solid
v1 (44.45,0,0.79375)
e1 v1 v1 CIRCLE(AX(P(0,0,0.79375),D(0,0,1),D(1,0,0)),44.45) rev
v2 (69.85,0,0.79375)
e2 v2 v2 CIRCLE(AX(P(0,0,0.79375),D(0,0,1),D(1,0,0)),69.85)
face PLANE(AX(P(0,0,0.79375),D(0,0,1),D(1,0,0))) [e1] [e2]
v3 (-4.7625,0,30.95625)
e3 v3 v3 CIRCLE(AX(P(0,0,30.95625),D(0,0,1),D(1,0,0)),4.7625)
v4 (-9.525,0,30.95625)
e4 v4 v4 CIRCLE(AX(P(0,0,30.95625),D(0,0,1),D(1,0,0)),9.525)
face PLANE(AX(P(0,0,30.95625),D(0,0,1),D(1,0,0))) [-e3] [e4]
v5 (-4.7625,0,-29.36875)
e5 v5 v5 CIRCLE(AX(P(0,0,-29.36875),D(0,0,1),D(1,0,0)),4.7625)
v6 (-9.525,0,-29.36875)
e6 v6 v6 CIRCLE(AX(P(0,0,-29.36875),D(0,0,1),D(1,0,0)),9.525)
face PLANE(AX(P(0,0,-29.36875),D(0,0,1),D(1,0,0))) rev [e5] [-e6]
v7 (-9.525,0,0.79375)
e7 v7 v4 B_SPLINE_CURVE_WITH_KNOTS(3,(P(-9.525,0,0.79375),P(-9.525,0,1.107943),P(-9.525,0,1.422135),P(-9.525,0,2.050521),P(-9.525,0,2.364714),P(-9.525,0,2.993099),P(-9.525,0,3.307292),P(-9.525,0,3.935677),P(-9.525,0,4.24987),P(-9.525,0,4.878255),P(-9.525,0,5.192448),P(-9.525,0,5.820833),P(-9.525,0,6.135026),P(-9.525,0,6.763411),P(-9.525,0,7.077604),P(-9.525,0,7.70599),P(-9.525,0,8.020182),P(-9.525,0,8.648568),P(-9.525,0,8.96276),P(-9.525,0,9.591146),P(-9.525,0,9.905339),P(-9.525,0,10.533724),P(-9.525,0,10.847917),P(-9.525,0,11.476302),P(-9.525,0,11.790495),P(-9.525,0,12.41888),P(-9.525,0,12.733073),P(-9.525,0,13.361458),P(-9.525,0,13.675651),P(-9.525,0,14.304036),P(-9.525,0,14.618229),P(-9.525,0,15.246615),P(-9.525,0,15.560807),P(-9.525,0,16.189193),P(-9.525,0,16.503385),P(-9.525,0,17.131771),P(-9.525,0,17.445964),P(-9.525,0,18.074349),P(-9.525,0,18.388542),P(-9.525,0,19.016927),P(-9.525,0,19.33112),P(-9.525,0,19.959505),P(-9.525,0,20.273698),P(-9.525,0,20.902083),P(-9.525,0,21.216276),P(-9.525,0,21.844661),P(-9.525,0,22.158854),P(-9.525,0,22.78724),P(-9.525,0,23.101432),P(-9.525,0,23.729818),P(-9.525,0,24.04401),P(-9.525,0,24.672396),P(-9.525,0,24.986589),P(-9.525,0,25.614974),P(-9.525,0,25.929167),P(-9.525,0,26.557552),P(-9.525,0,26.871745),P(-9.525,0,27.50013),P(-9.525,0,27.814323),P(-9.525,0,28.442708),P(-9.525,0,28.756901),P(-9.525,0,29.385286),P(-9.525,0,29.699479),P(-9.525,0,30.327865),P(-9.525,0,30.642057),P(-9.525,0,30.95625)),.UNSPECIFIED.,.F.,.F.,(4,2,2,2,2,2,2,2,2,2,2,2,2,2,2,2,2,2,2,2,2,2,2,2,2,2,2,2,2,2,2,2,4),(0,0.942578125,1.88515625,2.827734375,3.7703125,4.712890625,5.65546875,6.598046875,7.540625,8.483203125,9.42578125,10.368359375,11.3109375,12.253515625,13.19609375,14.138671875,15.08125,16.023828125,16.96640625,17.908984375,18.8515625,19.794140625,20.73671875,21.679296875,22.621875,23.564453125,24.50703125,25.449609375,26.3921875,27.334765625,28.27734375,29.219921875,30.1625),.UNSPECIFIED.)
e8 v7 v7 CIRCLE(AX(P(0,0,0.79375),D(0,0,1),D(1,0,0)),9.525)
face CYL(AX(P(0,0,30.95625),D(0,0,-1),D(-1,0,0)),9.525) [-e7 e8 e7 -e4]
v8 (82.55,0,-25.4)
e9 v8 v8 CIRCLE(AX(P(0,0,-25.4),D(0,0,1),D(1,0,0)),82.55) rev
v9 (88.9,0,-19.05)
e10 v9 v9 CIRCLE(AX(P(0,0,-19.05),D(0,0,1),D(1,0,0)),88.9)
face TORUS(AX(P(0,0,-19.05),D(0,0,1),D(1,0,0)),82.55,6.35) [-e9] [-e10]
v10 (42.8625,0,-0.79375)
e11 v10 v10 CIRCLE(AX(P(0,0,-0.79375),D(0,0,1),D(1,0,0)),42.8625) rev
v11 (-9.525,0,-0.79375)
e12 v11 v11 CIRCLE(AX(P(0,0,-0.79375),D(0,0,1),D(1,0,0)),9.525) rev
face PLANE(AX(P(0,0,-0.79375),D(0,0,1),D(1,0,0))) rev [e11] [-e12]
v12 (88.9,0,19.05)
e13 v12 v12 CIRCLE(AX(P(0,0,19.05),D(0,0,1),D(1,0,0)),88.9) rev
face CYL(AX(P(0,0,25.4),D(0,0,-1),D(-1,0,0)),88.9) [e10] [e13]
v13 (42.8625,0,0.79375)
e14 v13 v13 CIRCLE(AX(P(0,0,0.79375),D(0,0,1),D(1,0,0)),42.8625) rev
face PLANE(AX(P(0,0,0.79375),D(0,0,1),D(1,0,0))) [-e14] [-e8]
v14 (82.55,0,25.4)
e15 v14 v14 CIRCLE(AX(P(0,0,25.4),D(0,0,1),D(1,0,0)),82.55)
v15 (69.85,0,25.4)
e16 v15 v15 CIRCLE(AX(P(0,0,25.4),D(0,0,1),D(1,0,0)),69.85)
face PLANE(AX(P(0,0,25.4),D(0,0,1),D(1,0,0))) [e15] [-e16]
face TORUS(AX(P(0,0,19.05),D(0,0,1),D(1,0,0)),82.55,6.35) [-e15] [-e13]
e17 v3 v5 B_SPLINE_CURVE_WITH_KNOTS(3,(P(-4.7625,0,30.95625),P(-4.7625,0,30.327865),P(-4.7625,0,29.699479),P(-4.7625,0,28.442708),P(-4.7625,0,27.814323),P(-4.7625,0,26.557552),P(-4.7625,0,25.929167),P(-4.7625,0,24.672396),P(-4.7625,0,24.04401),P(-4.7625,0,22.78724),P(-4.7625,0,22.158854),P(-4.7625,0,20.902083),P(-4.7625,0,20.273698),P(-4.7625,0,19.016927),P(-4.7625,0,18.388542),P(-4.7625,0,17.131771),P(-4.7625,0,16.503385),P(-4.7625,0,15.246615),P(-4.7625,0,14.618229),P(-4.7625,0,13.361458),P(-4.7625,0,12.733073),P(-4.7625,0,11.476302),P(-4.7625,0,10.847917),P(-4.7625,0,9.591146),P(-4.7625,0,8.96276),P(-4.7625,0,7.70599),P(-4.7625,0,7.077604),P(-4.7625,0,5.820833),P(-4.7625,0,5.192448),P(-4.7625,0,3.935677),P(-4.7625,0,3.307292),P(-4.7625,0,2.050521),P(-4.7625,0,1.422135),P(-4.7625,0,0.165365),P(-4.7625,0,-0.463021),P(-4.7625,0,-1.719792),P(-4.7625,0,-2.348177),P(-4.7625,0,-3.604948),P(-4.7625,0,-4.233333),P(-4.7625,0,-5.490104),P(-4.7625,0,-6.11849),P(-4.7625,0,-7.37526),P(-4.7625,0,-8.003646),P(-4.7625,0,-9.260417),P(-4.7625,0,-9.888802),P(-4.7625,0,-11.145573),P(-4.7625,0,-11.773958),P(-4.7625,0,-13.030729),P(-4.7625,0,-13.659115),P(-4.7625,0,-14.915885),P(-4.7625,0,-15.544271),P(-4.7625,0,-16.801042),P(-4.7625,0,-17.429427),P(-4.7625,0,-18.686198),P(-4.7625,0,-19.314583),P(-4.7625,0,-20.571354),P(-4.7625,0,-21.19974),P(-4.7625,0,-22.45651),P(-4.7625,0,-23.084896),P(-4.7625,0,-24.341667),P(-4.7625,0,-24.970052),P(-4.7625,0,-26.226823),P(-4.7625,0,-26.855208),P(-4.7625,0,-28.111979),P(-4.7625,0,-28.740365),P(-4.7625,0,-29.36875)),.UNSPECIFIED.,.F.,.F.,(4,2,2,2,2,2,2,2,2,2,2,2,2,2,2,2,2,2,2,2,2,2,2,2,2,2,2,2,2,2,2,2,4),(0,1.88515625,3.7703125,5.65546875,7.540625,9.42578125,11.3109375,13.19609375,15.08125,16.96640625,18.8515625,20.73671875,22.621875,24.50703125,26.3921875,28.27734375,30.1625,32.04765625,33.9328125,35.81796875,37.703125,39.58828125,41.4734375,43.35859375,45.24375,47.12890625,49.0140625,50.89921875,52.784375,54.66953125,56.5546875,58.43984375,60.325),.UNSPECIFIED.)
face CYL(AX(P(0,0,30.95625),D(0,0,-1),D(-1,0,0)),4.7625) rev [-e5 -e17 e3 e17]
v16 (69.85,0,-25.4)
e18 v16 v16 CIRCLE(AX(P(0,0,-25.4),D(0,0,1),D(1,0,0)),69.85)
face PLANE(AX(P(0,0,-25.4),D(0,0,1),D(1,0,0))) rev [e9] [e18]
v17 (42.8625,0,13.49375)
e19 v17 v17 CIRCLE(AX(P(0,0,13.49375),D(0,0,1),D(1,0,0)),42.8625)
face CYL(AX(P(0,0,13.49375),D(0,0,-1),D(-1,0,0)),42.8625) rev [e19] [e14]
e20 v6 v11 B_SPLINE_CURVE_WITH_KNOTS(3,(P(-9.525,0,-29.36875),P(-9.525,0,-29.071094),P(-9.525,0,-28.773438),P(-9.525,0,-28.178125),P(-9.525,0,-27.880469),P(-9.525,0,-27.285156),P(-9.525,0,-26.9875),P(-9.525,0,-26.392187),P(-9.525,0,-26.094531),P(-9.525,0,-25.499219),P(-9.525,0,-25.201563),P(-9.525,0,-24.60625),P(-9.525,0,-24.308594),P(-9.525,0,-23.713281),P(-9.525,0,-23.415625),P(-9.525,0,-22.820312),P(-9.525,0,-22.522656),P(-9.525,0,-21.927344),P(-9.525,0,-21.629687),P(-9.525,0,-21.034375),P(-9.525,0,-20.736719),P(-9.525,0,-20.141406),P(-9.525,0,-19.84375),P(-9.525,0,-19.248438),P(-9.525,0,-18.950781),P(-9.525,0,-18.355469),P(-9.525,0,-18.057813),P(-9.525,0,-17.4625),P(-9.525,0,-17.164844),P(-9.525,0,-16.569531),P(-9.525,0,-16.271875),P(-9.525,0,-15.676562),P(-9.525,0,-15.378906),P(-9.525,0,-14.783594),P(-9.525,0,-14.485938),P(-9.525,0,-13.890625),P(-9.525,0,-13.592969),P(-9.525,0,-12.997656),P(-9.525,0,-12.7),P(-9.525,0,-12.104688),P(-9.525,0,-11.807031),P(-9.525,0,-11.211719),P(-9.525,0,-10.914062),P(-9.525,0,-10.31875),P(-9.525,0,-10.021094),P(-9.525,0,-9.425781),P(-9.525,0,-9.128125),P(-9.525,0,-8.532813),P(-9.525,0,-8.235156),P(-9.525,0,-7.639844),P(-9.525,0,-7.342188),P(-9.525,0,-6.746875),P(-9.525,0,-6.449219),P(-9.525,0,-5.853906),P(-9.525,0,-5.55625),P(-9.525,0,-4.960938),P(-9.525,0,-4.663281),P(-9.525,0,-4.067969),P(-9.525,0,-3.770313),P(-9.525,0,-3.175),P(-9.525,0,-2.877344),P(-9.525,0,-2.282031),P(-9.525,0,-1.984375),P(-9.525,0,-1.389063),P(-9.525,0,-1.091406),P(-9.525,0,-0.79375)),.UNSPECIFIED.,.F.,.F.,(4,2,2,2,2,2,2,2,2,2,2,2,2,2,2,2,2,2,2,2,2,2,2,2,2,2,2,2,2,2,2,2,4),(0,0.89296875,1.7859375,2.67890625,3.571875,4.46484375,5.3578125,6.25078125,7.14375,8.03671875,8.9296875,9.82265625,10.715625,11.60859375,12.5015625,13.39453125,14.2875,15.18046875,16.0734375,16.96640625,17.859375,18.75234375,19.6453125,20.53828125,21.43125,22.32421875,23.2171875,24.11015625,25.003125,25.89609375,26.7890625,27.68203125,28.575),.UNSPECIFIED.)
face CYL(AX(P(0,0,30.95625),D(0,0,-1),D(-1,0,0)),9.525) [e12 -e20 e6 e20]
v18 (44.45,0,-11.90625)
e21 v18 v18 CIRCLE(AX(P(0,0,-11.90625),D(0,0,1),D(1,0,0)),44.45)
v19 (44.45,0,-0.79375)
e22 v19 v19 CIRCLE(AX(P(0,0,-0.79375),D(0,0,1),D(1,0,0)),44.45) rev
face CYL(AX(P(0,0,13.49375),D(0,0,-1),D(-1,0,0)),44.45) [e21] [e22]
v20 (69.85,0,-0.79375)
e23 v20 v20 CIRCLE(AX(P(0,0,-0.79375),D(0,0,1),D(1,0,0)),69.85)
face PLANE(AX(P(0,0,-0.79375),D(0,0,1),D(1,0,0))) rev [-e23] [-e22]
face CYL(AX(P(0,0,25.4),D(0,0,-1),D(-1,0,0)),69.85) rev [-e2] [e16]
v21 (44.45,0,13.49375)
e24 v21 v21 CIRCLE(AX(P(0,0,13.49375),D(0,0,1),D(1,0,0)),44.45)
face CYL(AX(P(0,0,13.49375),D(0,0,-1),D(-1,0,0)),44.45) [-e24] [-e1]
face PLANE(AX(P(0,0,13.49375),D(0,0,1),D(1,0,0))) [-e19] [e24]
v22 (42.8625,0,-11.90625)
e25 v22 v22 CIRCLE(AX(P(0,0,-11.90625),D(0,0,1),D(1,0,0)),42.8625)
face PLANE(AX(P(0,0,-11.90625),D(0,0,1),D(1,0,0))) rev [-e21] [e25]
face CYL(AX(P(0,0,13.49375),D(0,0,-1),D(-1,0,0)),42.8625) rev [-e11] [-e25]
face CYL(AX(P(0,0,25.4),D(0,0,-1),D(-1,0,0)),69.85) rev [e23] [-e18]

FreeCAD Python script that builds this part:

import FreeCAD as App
import Part
import Sketcher
Q = App.Units.Quantity


def edges_at(feature, points):
    """Names of the edges that pass closest to the given points."""
    edges = feature.Shape.Edges
    near = lambda p: min(range(len(edges)), key=lambda i: edges[i].distToShape(Part.Vertex(*p))[0])
    return sorted({f"Edge{near(p) + 1}" for p in points})

doc = App.newDocument("Part")
params = doc.addObject("Spreadsheet::Sheet", "Params")
for row, (alias, value) in enumerate([
    ("sketch1_diameter", "7 in"),
    ("sketch1_diameter2", "5.5 in"),
    ("pad1_length", "2 in"),
    ("fillet_radius", "0.25 in"),
    ("sketch2_diameter", "5.5 in"),
    ("sketch2_diameter2", "0.75 in"),
    ("pad2_length", "0.0625 in"),
    ("sketch3_diameter", "0.75 in"),
    ("sketch3_diameter2", "0.375 in"),
    ("pad3_length", "2.375 in"),
    ("sketch4_diameter", "3.5 in"),
    ("sketch4_diameter2", "3.375 in"),
    ("pad4_length", "1 in"),
], start=1):
    params.set(f"A{row}", alias)
    params.set(f"B{row}", "=" + value)
    params.setAlias(f"B{row}", alias)

body = doc.addObject("PartDesign::Body", "Body")

# Sketch on XY plane
sketch1 = doc.addObject("Sketcher::SketchObject", "Sketch")
body.addObject(sketch1)
sketch1.AttachmentSupport = (doc.XY_Plane, [""])
sketch1.MapMode = "FlatFace"
sketch1.addGeometry([
    Part.Circle(App.Vector(0, 0, 0), App.Vector(0, 0, 1), 89),
    Part.Circle(App.Vector(0, 0, 0), App.Vector(0, 0, 1), 70),
], False)
sketch1.addConstraint([
    Sketcher.Constraint("Coincident", 0, 3, -1, 1),
    Sketcher.Constraint("Coincident", 1, 3, -1, 1),
    Sketcher.Constraint("Diameter", 0, Q("7 in")),
    Sketcher.Constraint("Diameter", 1, Q("5.5 in")),
])
sketch1.setExpression("Constraints[2]", "Params.sketch1_diameter")
sketch1.setExpression("Constraints[3]", "Params.sketch1_diameter2")
pad1 = doc.addObject("PartDesign::Pad", "Pad")
body.addObject(pad1)
pad1.Profile = sketch1
pad1.setExpression("Length", "Params.pad1_length")
pad1.Midplane = True
doc.recompute()

fillet = doc.addObject("PartDesign::Fillet", "Fillet")
body.addObject(fillet)
fillet.Base = (pad1, edges_at(pad1, [(-88.9, 0, -25.4), (-88.9, 0, 25.4)]))
fillet.setExpression("Radius", "Params.fillet_radius")

# Sketch on XY plane
sketch2 = doc.addObject("Sketcher::SketchObject", "Sketch001")
body.addObject(sketch2)
sketch2.AttachmentSupport = (doc.XY_Plane, [""])
sketch2.MapMode = "FlatFace"
sketch2.addGeometry([
    Part.Circle(App.Vector(0, 0, 0), App.Vector(0, 0, 1), 70),
    Part.Circle(App.Vector(0, 0, 0), App.Vector(0, 0, 1), 10),
], False)
sketch2.addConstraint([
    Sketcher.Constraint("Coincident", 0, 3, -1, 1),
    Sketcher.Constraint("Coincident", 1, 3, -1, 1),
    Sketcher.Constraint("Diameter", 0, Q("5.5 in")),
    Sketcher.Constraint("Diameter", 1, Q("0.75 in")),
])
sketch2.setExpression("Constraints[2]", "Params.sketch2_diameter")
sketch2.setExpression("Constraints[3]", "Params.sketch2_diameter2")
pad2 = doc.addObject("PartDesign::Pad", "Pad001")
body.addObject(pad2)
pad2.Profile = sketch2
pad2.setExpression("Length", "Params.pad2_length")
pad2.Midplane = True

# Sketch on XY plane
sketch3 = doc.addObject("Sketcher::SketchObject", "Sketch002")
body.addObject(sketch3)
sketch3.AttachmentSupport = (doc.XY_Plane, [""])
sketch3.MapMode = "FlatFace"
sketch3.AttachmentOffset = App.Placement(App.Vector(0, 0, 0.03125 * 25.4), App.Rotation())
sketch3.addGeometry([
    Part.Circle(App.Vector(0, 0, 0), App.Vector(0, 0, 1), 9.5),
    Part.Circle(App.Vector(0, 0, 0), App.Vector(0, 0, 1), 4.8),
], False)
sketch3.addConstraint([
    Sketcher.Constraint("Coincident", 0, 3, -1, 1),
    Sketcher.Constraint("Coincident", 1, 3, -1, 1),
    Sketcher.Constraint("Diameter", 0, Q("0.75 in")),
    Sketcher.Constraint("Diameter", 1, Q("0.375 in")),
])
sketch3.setExpression("Constraints[2]", "Params.sketch3_diameter")
sketch3.setExpression("Constraints[3]", "Params.sketch3_diameter2")
pad3 = doc.addObject("PartDesign::Pad", "Pad002")
body.addObject(pad3)
pad3.Profile = sketch3
pad3.setExpression("Length", "Params.pad3_length")
pad3.Midplane = True

# Sketch on XY plane
sketch4 = doc.addObject("Sketcher::SketchObject", "Sketch003")
body.addObject(sketch4)
sketch4.AttachmentSupport = (doc.XY_Plane, [""])
sketch4.MapMode = "FlatFace"
sketch4.AttachmentOffset = App.Placement(App.Vector(0, 0, 0.03125 * 25.4), App.Rotation())
sketch4.addGeometry([
    Part.Circle(App.Vector(0, 0, 0), App.Vector(0, 0, 1), 44),
    Part.Circle(App.Vector(0, 0, 0), App.Vector(0, 0, 1), 43),
], False)
sketch4.addConstraint([
    Sketcher.Constraint("Coincident", 0, 3, -1, 1),
    Sketcher.Constraint("Coincident", 1, 3, -1, 1),
    Sketcher.Constraint("Diameter", 0, Q("3.5 in")),
    Sketcher.Constraint("Diameter", 1, Q("3.375 in")),
])
sketch4.setExpression("Constraints[2]", "Params.sketch4_diameter")
sketch4.setExpression("Constraints[3]", "Params.sketch4_diameter2")
pad4 = doc.addObject("PartDesign::Pad", "Pad003")
body.addObject(pad4)
pad4.Profile = sketch4
pad4.setExpression("Length", "Params.pad4_length")
pad4.Midplane = True

doc.recompute()
